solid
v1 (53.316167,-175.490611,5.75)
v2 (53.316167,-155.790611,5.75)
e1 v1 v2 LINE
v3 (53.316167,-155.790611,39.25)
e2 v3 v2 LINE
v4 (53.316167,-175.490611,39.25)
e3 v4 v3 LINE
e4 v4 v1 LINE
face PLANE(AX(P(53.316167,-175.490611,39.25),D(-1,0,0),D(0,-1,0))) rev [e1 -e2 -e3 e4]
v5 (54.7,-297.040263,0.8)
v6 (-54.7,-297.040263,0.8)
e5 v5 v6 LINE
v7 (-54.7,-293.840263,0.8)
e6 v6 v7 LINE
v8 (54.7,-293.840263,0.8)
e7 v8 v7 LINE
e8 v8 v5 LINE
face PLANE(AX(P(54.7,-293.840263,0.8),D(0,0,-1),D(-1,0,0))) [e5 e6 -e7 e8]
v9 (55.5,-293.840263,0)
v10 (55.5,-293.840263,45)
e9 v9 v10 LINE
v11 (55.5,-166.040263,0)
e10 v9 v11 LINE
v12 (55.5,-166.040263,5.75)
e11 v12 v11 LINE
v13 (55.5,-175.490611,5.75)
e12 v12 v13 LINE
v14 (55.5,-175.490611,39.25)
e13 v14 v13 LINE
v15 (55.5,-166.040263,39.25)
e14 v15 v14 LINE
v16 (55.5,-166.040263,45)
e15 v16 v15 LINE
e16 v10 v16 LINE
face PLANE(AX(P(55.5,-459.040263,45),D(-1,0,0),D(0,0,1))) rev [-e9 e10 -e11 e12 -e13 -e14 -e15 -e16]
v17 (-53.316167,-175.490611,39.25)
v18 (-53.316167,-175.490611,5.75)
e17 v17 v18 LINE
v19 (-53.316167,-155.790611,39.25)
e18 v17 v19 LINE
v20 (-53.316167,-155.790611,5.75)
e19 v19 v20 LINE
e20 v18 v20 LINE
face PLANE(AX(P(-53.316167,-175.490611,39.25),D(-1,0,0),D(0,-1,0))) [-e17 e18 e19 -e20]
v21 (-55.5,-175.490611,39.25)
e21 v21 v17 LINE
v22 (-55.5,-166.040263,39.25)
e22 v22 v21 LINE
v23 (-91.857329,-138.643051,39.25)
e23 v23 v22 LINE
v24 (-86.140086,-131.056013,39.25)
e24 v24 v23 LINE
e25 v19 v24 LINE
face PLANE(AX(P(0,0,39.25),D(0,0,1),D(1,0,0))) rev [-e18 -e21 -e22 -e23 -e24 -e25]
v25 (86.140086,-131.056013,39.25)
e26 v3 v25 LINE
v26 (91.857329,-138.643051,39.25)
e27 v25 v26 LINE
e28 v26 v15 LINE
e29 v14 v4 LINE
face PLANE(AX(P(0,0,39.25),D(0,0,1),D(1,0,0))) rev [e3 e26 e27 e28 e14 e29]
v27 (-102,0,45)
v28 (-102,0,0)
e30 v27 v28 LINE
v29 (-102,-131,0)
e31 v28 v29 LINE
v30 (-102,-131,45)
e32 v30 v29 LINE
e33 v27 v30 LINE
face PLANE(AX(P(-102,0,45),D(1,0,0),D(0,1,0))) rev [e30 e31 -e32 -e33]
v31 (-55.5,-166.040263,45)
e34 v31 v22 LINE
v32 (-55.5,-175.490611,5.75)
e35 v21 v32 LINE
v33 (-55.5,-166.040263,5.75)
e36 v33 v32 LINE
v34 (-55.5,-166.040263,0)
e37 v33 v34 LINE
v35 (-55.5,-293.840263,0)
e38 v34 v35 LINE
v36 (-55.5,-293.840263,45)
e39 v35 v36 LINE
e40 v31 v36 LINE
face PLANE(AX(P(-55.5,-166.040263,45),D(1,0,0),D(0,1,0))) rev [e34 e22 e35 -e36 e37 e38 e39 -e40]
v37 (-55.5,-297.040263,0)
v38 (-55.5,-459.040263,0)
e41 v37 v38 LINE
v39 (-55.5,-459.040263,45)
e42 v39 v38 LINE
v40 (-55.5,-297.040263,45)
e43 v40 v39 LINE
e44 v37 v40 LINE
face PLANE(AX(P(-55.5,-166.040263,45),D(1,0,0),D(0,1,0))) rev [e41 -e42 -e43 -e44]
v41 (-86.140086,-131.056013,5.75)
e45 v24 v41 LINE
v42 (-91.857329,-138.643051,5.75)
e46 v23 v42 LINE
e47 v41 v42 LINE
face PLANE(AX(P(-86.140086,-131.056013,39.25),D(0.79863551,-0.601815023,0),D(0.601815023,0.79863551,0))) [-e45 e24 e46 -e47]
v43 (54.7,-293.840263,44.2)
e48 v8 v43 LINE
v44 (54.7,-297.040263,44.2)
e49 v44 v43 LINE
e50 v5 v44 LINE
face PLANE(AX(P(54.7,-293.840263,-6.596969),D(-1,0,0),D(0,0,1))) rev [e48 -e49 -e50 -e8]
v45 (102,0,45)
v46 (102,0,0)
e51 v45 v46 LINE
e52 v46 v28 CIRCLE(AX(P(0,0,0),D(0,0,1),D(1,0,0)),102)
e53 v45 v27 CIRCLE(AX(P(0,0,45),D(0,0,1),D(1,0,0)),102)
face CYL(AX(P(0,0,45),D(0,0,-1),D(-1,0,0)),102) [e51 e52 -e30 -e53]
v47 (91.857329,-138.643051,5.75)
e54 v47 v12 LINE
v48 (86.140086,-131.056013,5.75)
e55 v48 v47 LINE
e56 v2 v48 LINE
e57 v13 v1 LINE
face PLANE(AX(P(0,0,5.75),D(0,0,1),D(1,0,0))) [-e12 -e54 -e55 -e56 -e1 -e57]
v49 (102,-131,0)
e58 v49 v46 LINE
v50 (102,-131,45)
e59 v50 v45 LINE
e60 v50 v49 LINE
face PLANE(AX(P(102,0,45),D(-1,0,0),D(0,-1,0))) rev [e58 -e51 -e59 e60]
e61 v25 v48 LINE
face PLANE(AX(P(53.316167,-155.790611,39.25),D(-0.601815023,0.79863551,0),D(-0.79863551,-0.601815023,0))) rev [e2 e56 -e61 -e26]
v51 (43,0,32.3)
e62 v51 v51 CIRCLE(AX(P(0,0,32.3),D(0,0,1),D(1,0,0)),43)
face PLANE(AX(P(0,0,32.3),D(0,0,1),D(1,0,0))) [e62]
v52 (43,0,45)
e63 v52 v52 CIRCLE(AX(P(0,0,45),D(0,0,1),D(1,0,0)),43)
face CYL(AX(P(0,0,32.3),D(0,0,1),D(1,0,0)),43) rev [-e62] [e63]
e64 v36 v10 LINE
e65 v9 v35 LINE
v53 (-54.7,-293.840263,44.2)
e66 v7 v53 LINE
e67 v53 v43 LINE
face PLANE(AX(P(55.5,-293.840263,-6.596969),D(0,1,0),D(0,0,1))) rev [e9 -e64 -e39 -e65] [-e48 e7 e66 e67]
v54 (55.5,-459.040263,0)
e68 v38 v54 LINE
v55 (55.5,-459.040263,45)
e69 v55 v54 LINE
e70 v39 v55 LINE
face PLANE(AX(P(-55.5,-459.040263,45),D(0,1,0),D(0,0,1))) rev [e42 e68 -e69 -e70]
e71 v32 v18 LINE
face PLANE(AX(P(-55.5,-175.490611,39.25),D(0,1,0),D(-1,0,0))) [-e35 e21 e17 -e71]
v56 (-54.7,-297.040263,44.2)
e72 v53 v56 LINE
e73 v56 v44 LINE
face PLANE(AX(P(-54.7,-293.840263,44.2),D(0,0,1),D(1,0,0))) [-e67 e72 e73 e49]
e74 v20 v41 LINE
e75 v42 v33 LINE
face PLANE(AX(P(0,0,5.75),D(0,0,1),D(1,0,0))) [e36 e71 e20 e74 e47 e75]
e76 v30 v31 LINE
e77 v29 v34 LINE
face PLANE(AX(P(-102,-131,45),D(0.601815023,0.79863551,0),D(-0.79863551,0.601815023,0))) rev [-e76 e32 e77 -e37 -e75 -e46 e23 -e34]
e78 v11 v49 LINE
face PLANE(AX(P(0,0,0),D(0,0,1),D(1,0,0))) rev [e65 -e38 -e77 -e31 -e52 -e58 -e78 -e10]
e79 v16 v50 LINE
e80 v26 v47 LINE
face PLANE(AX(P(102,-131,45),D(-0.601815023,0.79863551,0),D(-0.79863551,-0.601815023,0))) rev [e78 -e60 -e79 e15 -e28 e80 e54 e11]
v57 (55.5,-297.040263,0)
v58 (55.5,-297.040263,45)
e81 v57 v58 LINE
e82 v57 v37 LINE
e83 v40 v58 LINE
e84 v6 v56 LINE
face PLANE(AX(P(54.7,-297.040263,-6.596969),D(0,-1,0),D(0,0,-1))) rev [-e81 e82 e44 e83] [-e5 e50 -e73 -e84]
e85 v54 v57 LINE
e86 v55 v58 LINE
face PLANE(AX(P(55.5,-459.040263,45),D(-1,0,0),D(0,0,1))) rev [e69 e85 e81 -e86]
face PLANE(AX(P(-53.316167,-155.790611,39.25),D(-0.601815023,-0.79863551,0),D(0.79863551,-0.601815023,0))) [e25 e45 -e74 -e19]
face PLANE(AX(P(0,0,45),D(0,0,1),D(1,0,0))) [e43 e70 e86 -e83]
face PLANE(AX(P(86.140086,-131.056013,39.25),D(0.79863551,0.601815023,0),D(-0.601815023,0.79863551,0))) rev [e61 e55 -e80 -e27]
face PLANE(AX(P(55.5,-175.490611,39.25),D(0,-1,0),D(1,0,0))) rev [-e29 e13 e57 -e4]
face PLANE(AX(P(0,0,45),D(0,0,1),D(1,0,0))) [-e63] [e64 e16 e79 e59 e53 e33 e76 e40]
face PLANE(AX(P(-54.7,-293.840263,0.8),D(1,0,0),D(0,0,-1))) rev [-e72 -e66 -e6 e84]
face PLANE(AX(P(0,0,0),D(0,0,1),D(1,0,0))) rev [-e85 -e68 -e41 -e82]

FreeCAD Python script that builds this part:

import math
import FreeCAD as App
import Part
import Sketcher
from FreeCAD import Vector
Q = App.Units.Quantity


def add_polygon(sketch, points):
    """Adds a closed chain of lines whose ends are joined by coincident constraints."""
    first, n = sketch.GeometryCount, len(points)
    for a, b in zip(points, points[1:] + points[:1]):
        sketch.addGeometry(Part.LineSegment(App.Vector(*a, 0), App.Vector(*b, 0)), False)
    for i in range(n):
        sketch.addConstraint(Sketcher.Constraint("Coincident", first + i, 2, first + (i + 1) % n, 1))

doc = App.newDocument("Part")
body = doc.addObject("PartDesign::Body", "Body")

# Sketch on XY plane
sketch1 = body.newObject("Sketcher::SketchObject", "Sketch")
sketch1.AttachmentSupport = (doc.getObject("XY_Plane"), [""])
sketch1.MapMode = "FlatFace"
sketch1.addGeometry(Part.LineSegment(Vector(-102, 0, 0), Vector(-102, -131, 0)), False)
sketch1.addGeometry(Part.LineSegment(Vector(-102, -131, 0), Vector(-56, -166, 0)), False)
sketch1.addGeometry(Part.LineSegment(Vector(-56, -166, 0), Vector(-56, -459, 0)), False)
sketch1.addGeometry(Part.LineSegment(Vector(-56, -459, 0), Vector(56, -459, 0)), False)
sketch1.addGeometry(Part.LineSegment(Vector(56, -459, 0), Vector(56, -166, 0)), False)
sketch1.addGeometry(Part.LineSegment(Vector(56, -166, 0), Vector(102, -131, 0)), False)
sketch1.addGeometry(Part.LineSegment(Vector(102, -131, 0), Vector(102, 0, 0)), False)
sketch1.addGeometry(Part.ArcOfCircle(Part.Circle(Vector(0, 0, 0), Vector(0, 0, 1), 102), math.radians(0), math.radians(180)), False)
sketch1.addConstraint(Sketcher.Constraint("Coincident", 0, 2, 1, 1))
sketch1.addConstraint(Sketcher.Constraint("Coincident", 1, 2, 2, 1))
sketch1.addConstraint(Sketcher.Constraint("Coincident", 2, 2, 3, 1))
sketch1.addConstraint(Sketcher.Constraint("Coincident", 3, 2, 4, 1))
sketch1.addConstraint(Sketcher.Constraint("Coincident", 4, 2, 5, 1))
sketch1.addConstraint(Sketcher.Constraint("Coincident", 5, 2, 6, 1))
sketch1.addConstraint(Sketcher.Constraint("Tangent", 6, 2, 7, 1))
sketch1.addConstraint(Sketcher.Constraint("Tangent", 7, 2, 0, 1))
sketch1.addConstraint(Sketcher.Constraint("Vertical", 0))
sketch1.addConstraint(Sketcher.Constraint("Vertical", 2))
sketch1.addConstraint(Sketcher.Constraint("Horizontal", 3))
sketch1.addConstraint(Sketcher.Constraint("Vertical", 4))
sketch1.addConstraint(Sketcher.Constraint("Vertical", 6))
sketch1.addConstraint(Sketcher.Constraint("Coincident", 7, 3, -1, 1))
sketch1.addConstraint(Sketcher.Constraint("Symmetric", 1, 2, 4, 2, -2))
sketch1.addConstraint(Sketcher.Constraint("Horizontal", 0, 2, 5, 2))
sketch1.addConstraint(Sketcher.Constraint("Radius", 7, Q("102 mm")))
sketch1.addConstraint(Sketcher.Constraint("DistanceX", 3, 1, 3, 2, Q("111 mm")))
sketch1.addConstraint(Sketcher.Constraint("DistanceY", 0, 2, 0, 1, Q("131 mm")))
sketch1.addConstraint(Sketcher.Constraint("DistanceY", 2, 2, 2, 1, Q("293 mm")))
sketch1.addConstraint(Sketcher.Constraint("Angle", 1, Q("-37 deg")))
pad1 = body.newObject("PartDesign::Pad", "Pad")
pad1.Profile = sketch1
pad1.Length = 45

# Sketch on XY plane
sketch2 = body.newObject("Sketcher::SketchObject", "Sketch001")
sketch2.AttachmentSupport = (doc.getObject("XY_Plane"), [""])
sketch2.MapMode = "FlatFace"
sketch2.AttachmentOffset = App.Placement(Vector(0, 0, 45), App.Rotation())
sketch2.addGeometry(Part.Circle(Vector(0, 0, 0), Vector(0, 0, 1), 43), False)
sketch2.addConstraint(Sketcher.Constraint("Coincident", 0, 3, -1, 1))
sketch2.addConstraint(Sketcher.Constraint("Diameter", 0, Q("86 mm")))
pocket1 = body.newObject("PartDesign::Pocket", "Pocket")
pocket1.Profile = sketch2
pocket1.Length = 12.7

# Sketch on XY plane
sketch3 = body.newObject("Sketcher::SketchObject", "Sketch002")
sketch3.AttachmentSupport = (doc.getObject("XY_Plane"), [""])
sketch3.MapMode = "FlatFace"
sketch3.AttachmentOffset = App.Placement(Vector(0, 0, 39.25), App.Rotation())
add_polygon(sketch3, [(91.9, -138.6), (55.5, -166), (55.5, -175.5), (53.3, -175.5), (53.3, -155.8), (86.1, -131.1)])  # lines 0-5
sketch3.addConstraint(Sketcher.Constraint("Vertical", 1))
sketch3.addConstraint(Sketcher.Constraint("Horizontal", 2))
sketch3.addConstraint(Sketcher.Constraint("Vertical", 3))
sketch3.addConstraint(Sketcher.Constraint("Parallel", 0, 4))
sketch3.addConstraint(Sketcher.Constraint("Perpendicular", 4, 5))
sketch3.addConstraint(Sketcher.Constraint("Angle", 0, Q("-143 deg")))
sketch3.addConstraint(Sketcher.Constraint("DistanceY", 3, 1, 3, 2, Q("19.7 mm")))
sketch3.addConstraint(Sketcher.Constraint("Distance", 4, Q("41.1 mm")))
sketch3.addConstraint(Sketcher.Constraint("Distance", 5, Q("9.5 mm")))
sketch3.addConstraint(Sketcher.Constraint("DistanceX", -1, 1, 0, 2, Q("55.5 mm")))
sketch3.addConstraint(Sketcher.Constraint("Distance", 0, Q("45.524308 mm")))
sketch3.addConstraint(Sketcher.Constraint("DistanceY", 1, 2, -1, 1, Q("175.490611 mm")))
pocket2 = body.newObject("PartDesign::Pocket", "Pocket001")
pocket2.Profile = sketch3
pocket2.Length = 33.5
doc.recompute()

mirrored = body.newObject("PartDesign::Mirrored", "Mirrored")
mirrored.Originals = [pocket2]
mirrored.MirrorPlane = (doc.getObject("YZ_Plane"), [""])
body.Tip = mirrored

# Sketch on XY plane
sketch4 = body.newObject("Sketcher::SketchObject", "Sketch003")
sketch4.AttachmentSupport = (doc.getObject("XY_Plane"), [""])
sketch4.MapMode = "FlatFace"
sketch4.AttachmentOffset = App.Placement(Vector(0, 0, 45), App.Rotation())
add_polygon(sketch4, [(54.7, -293.8), (54.7, -297), (55.5, -297), (55.5, -293.8)])  # lines 0-3
sketch4.addConstraint(Sketcher.Constraint("Vertical", 0))
sketch4.addConstraint(Sketcher.Constraint("Horizontal", 1))
sketch4.addConstraint(Sketcher.Constraint("Vertical", 2))
sketch4.addConstraint(Sketcher.Constraint("Horizontal", 3))
sketch4.addConstraint(Sketcher.Constraint("DistanceX", 1, 1, 1, 2, Q("0.8 mm")))
sketch4.addConstraint(Sketcher.Constraint("DistanceY", 0, 2, 0, 1, Q("3.2 mm")))
sketch4.addConstraint(Sketcher.Constraint("DistanceX", -1, 1, 0, 2, Q("54.7 mm")))
sketch4.addConstraint(Sketcher.Constraint("DistanceY", 0, 2, -1, 1, Q("297.040263 mm")))

# Sketch on XZ plane
sketch5 = body.newObject("Sketcher::SketchObject", "Sketch004")
sketch5.AttachmentSupport = (doc.getObject("XZ_Plane"), [""])
sketch5.MapMode = "FlatFace"
sketch5.AttachmentOffset = App.Placement(Vector(0, 0, 295.440263), App.Rotation())
add_polygon(sketch5, [(56, 45), (56, 0), (-56, 0), (-56, 45)])  # lines 0-3
sketch5.addConstraint(Sketcher.Constraint("Vertical", 0))
sketch5.addConstraint(Sketcher.Constraint("Horizontal", 1))
sketch5.addConstraint(Sketcher.Constraint("Vertical", 2))
sketch5.addConstraint(Sketcher.Constraint("Horizontal", 3))
sketch5.addConstraint(Sketcher.Constraint("Symmetric", 0, 2, 1, 2, -1, 1))
sketch5.addConstraint(Sketcher.Constraint("DistanceX", 1, 2, 1, 1, Q("111 mm")))
sketch5.addConstraint(Sketcher.Constraint("DistanceY", 0, 2, 0, 1, Q("45 mm")))
doc.recompute()

subtractivepipe = body.newObject("PartDesign::SubtractivePipe", "SubtractivePipe")
subtractivepipe.Profile = sketch4
subtractivepipe.Spine = (sketch5, ["Edge1", "Edge2", "Edge3", "Edge4"])
subtractivepipe.Transition = "Right corner"

doc.recompute()
